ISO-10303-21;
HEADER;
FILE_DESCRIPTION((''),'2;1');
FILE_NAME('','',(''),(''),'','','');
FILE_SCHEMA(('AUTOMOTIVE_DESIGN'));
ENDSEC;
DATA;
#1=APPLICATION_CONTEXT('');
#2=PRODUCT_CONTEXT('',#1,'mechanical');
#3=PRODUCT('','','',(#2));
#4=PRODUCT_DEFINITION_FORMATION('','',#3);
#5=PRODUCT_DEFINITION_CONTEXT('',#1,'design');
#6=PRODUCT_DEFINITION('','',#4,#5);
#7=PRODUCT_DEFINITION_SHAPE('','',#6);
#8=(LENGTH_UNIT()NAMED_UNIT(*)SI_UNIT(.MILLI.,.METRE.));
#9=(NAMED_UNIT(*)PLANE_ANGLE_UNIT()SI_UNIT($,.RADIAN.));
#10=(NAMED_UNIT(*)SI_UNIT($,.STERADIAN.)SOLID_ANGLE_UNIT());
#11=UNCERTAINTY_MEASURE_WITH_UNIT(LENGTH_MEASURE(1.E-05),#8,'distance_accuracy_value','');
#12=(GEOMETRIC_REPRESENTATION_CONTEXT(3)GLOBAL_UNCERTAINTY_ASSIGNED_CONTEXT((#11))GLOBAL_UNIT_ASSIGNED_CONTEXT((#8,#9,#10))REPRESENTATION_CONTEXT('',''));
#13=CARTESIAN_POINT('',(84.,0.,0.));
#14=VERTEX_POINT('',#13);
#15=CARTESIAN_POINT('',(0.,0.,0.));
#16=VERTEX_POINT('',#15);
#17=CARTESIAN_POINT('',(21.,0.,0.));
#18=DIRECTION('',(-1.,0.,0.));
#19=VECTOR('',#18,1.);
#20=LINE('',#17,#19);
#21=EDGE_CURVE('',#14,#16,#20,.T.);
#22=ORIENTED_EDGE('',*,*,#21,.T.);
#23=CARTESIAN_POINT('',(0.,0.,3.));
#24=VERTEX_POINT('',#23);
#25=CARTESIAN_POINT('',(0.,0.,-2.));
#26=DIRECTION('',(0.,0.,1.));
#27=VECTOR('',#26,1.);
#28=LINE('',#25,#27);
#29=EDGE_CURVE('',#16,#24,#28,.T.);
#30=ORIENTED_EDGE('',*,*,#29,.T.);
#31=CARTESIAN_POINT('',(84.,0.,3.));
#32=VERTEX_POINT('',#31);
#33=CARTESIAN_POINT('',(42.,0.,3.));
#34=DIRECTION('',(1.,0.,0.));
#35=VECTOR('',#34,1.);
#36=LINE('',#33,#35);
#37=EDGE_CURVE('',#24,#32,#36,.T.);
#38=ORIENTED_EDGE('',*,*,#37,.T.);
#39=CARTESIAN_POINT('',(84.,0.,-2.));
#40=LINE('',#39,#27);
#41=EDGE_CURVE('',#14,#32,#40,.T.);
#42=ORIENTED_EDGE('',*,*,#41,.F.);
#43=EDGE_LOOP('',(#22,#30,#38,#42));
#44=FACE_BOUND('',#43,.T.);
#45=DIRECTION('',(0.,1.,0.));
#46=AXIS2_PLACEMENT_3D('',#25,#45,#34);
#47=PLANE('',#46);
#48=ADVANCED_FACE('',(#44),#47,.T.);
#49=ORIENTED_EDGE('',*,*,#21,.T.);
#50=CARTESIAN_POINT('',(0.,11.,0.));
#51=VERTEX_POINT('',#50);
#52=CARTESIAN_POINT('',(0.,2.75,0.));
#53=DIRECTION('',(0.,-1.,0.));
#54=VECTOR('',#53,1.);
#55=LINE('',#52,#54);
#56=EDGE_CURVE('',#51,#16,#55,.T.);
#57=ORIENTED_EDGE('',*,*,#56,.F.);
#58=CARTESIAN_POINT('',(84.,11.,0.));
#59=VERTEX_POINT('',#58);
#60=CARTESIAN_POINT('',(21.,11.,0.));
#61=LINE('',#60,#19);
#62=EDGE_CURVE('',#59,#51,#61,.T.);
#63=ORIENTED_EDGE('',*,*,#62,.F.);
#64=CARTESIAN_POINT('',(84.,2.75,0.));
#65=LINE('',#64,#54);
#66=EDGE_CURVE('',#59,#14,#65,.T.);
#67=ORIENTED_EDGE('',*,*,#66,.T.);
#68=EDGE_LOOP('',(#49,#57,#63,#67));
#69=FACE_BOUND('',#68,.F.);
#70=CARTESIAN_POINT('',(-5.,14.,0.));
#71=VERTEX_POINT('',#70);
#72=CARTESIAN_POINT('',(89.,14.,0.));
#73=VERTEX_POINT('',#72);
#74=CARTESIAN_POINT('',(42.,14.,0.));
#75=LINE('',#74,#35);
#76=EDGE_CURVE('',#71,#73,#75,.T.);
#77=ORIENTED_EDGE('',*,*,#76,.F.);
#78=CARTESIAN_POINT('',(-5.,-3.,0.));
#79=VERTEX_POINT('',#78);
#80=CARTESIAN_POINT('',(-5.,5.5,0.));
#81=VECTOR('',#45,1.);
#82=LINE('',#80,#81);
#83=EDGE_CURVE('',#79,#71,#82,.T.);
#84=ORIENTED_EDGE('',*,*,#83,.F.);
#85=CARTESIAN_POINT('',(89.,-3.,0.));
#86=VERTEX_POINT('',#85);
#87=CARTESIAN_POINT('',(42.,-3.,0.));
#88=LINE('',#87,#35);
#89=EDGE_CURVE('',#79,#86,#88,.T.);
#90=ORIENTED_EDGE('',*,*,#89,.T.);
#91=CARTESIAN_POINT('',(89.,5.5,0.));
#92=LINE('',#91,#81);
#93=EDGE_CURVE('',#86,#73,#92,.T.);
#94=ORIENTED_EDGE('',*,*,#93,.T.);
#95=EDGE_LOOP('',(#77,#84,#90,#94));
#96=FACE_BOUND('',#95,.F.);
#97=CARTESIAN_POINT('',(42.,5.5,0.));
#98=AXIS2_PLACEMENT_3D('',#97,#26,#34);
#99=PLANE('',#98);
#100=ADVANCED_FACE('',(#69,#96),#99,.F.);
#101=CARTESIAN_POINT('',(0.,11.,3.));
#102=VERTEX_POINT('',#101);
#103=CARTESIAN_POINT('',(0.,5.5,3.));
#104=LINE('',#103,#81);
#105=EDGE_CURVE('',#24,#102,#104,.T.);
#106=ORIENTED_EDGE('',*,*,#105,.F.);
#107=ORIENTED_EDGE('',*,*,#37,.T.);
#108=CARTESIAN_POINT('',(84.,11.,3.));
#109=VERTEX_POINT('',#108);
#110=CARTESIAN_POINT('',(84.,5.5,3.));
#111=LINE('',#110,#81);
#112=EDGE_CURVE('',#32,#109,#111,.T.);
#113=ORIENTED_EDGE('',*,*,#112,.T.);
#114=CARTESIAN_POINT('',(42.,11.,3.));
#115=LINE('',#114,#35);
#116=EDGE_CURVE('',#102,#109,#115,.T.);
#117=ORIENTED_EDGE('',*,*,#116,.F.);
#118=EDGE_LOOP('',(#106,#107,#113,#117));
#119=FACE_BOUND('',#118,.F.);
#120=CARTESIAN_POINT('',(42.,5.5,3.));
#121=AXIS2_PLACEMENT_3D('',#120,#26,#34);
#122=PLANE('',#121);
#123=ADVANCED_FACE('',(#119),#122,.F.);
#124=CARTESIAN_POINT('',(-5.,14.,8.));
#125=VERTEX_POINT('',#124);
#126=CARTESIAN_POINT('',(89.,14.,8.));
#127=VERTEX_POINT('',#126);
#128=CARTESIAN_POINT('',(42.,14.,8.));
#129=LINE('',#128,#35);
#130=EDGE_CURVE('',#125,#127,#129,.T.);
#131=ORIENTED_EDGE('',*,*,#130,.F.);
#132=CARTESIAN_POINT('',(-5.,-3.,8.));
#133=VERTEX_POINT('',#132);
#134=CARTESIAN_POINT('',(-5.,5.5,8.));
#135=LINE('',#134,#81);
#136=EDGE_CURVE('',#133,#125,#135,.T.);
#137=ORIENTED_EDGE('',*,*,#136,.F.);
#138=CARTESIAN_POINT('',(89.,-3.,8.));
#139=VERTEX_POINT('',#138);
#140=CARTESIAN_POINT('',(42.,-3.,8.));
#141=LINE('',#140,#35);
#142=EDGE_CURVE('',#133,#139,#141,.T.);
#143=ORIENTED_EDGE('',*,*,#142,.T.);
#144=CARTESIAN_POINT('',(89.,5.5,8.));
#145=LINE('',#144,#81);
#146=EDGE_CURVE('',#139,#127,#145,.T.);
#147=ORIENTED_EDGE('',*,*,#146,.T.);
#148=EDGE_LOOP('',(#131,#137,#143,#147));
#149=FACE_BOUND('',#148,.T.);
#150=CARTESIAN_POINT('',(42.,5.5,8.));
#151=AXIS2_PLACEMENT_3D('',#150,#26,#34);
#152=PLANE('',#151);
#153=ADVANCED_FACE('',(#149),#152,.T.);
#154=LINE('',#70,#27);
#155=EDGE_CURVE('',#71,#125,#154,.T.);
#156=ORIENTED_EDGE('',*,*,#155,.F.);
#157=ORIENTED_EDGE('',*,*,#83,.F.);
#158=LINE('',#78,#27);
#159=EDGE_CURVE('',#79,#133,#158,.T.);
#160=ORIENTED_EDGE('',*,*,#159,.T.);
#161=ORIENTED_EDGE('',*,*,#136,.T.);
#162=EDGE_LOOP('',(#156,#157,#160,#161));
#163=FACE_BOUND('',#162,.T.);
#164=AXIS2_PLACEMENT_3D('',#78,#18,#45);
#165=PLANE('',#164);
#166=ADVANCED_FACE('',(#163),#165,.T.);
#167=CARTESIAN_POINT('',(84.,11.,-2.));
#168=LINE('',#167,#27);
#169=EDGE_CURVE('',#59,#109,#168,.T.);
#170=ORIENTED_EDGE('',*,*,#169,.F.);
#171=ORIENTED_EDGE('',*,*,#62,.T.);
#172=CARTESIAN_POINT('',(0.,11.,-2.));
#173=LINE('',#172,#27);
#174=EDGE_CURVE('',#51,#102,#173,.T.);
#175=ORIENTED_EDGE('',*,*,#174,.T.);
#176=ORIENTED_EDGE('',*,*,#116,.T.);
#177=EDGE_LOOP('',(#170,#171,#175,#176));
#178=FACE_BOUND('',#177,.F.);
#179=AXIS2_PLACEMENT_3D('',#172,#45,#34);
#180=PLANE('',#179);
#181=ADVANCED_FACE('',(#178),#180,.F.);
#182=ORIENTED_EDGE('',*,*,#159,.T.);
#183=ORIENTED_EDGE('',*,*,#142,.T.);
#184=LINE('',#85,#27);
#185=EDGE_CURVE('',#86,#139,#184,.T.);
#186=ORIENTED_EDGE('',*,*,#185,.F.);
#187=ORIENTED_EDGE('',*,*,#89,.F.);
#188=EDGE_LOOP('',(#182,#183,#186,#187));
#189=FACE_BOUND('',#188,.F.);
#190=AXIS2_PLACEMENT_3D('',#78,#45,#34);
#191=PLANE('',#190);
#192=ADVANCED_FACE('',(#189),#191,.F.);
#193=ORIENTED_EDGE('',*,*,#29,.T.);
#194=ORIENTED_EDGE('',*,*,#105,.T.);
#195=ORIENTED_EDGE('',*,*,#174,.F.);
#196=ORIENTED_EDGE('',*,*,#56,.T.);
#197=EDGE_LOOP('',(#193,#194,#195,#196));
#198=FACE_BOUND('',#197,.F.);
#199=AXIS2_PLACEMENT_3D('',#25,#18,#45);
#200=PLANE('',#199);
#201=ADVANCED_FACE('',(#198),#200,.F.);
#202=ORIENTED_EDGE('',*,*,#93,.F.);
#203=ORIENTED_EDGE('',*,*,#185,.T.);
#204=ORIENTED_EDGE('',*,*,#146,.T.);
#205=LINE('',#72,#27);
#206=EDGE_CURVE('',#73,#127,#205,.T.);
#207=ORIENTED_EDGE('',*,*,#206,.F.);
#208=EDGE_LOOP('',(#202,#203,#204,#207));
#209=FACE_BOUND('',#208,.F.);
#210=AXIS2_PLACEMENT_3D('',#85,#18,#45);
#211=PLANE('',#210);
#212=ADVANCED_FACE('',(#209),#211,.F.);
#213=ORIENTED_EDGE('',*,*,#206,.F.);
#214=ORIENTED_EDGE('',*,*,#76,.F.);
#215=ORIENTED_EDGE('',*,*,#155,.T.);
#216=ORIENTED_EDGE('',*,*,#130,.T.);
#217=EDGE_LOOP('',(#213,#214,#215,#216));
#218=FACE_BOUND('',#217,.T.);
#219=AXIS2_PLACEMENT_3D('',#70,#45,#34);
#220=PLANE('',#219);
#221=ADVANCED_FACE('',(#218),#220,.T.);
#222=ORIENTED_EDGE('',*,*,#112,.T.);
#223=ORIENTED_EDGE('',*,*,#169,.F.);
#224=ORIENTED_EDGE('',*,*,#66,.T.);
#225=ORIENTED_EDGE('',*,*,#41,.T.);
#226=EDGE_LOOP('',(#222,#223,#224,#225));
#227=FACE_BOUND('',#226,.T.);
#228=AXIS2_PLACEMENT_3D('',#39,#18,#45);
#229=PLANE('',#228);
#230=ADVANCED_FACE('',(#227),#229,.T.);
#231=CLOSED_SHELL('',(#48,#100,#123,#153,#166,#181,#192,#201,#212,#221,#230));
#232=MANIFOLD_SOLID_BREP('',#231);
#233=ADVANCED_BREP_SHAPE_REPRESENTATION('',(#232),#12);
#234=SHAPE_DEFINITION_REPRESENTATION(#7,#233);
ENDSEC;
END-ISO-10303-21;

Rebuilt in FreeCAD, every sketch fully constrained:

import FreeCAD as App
import Part
import Sketcher
from FreeCAD import Vector
Q = App.Units.Quantity

doc = App.newDocument("Part")
body = doc.addObject("PartDesign::Body", "Body")

# Sketch on XY plane
sketch1 = body.newObject("Sketcher::SketchObject", "Sketch")
sketch1.AttachmentSupport = (doc.getObject("XY_Plane"), [""])
sketch1.MapMode = "FlatFace"
sketch1.AttachmentOffset = App.Placement(Vector(0, 0, -2), App.Rotation())
sketch1.addGeometry(Part.LineSegment(Vector(0, 11, 0), Vector(0, 0, 0)), False)
sketch1.addGeometry(Part.LineSegment(Vector(0, 0, 0), Vector(84, 0, 0)), False)
sketch1.addGeometry(Part.LineSegment(Vector(84, 0, 0), Vector(84, 11, 0)), False)
sketch1.addGeometry(Part.LineSegment(Vector(84, 11, 0), Vector(0, 11, 0)), False)
sketch1.addConstraint(Sketcher.Constraint("Coincident", 0, 2, 1, 1))
sketch1.addConstraint(Sketcher.Constraint("Coincident", 1, 2, 2, 1))
sketch1.addConstraint(Sketcher.Constraint("Coincident", 2, 2, 3, 1))
sketch1.addConstraint(Sketcher.Constraint("Coincident", 3, 2, 0, 1))
sketch1.addConstraint(Sketcher.Constraint("Vertical", 0))
sketch1.addConstraint(Sketcher.Constraint("Horizontal", 1))
sketch1.addConstraint(Sketcher.Constraint("Vertical", 2))
sketch1.addConstraint(Sketcher.Constraint("Horizontal", 3))
sketch1.addConstraint(Sketcher.Constraint("Coincident", 0, 2, -1, 1))
sketch1.addConstraint(Sketcher.Constraint("DistanceX", 1, 1, 1, 2, Q("84 mm")))
sketch1.addConstraint(Sketcher.Constraint("DistanceY", 0, 2, 0, 1, Q("11 mm")))
pad1 = body.newObject("PartDesign::Pad", "Pad")
pad1.Profile = sketch1
pad1.Length = 5
body2 = doc.addObject("PartDesign::Body", "Body001")

# Sketch on XY plane
sketch2 = body2.newObject("Sketcher::SketchObject", "Sketch001")
sketch2.AttachmentSupport = (doc.getObject("XY_Plane001"), [""])
sketch2.MapMode = "FlatFace"
sketch2.addGeometry(Part.LineSegment(Vector(-5, 14, 0), Vector(-5, -3, 0)), False)
sketch2.addGeometry(Part.LineSegment(Vector(-5, -3, 0), Vector(89, -3, 0)), False)
sketch2.addGeometry(Part.LineSegment(Vector(89, -3, 0), Vector(89, 14, 0)), False)
sketch2.addGeometry(Part.LineSegment(Vector(89, 14, 0), Vector(-5, 14, 0)), False)
sketch2.addConstraint(Sketcher.Constraint("Coincident", 0, 2, 1, 1))
sketch2.addConstraint(Sketcher.Constraint("Coincident", 1, 2, 2, 1))
sketch2.addConstraint(Sketcher.Constraint("Coincident", 2, 2, 3, 1))
sketch2.addConstraint(Sketcher.Constraint("Coincident", 3, 2, 0, 1))
sketch2.addConstraint(Sketcher.Constraint("Vertical", 0))
sketch2.addConstraint(Sketcher.Constraint("Horizontal", 1))
sketch2.addConstraint(Sketcher.Constraint("Vertical", 2))
sketch2.addConstraint(Sketcher.Constraint("Horizontal", 3))
sketch2.addConstraint(Sketcher.Constraint("DistanceX", 1, 1, 1, 2, Q("94 mm")))
sketch2.addConstraint(Sketcher.Constraint("DistanceY", 0, 2, 0, 1, Q("17 mm")))
sketch2.addConstraint(Sketcher.Constraint("DistanceX", 0, 2, -1, 1, Q("5 mm")))
sketch2.addConstraint(Sketcher.Constraint("DistanceY", 0, 2, -1, 1, Q("3 mm")))
pad2 = body2.newObject("PartDesign::Pad", "Pad001")
pad2.Profile = sketch2
pad2.Length = 8
doc.recompute()

boolean = body2.newObject("PartDesign::Boolean", "Boolean")
boolean.Type = "Cut"
boolean.addObjects([body])

doc.recompute()
